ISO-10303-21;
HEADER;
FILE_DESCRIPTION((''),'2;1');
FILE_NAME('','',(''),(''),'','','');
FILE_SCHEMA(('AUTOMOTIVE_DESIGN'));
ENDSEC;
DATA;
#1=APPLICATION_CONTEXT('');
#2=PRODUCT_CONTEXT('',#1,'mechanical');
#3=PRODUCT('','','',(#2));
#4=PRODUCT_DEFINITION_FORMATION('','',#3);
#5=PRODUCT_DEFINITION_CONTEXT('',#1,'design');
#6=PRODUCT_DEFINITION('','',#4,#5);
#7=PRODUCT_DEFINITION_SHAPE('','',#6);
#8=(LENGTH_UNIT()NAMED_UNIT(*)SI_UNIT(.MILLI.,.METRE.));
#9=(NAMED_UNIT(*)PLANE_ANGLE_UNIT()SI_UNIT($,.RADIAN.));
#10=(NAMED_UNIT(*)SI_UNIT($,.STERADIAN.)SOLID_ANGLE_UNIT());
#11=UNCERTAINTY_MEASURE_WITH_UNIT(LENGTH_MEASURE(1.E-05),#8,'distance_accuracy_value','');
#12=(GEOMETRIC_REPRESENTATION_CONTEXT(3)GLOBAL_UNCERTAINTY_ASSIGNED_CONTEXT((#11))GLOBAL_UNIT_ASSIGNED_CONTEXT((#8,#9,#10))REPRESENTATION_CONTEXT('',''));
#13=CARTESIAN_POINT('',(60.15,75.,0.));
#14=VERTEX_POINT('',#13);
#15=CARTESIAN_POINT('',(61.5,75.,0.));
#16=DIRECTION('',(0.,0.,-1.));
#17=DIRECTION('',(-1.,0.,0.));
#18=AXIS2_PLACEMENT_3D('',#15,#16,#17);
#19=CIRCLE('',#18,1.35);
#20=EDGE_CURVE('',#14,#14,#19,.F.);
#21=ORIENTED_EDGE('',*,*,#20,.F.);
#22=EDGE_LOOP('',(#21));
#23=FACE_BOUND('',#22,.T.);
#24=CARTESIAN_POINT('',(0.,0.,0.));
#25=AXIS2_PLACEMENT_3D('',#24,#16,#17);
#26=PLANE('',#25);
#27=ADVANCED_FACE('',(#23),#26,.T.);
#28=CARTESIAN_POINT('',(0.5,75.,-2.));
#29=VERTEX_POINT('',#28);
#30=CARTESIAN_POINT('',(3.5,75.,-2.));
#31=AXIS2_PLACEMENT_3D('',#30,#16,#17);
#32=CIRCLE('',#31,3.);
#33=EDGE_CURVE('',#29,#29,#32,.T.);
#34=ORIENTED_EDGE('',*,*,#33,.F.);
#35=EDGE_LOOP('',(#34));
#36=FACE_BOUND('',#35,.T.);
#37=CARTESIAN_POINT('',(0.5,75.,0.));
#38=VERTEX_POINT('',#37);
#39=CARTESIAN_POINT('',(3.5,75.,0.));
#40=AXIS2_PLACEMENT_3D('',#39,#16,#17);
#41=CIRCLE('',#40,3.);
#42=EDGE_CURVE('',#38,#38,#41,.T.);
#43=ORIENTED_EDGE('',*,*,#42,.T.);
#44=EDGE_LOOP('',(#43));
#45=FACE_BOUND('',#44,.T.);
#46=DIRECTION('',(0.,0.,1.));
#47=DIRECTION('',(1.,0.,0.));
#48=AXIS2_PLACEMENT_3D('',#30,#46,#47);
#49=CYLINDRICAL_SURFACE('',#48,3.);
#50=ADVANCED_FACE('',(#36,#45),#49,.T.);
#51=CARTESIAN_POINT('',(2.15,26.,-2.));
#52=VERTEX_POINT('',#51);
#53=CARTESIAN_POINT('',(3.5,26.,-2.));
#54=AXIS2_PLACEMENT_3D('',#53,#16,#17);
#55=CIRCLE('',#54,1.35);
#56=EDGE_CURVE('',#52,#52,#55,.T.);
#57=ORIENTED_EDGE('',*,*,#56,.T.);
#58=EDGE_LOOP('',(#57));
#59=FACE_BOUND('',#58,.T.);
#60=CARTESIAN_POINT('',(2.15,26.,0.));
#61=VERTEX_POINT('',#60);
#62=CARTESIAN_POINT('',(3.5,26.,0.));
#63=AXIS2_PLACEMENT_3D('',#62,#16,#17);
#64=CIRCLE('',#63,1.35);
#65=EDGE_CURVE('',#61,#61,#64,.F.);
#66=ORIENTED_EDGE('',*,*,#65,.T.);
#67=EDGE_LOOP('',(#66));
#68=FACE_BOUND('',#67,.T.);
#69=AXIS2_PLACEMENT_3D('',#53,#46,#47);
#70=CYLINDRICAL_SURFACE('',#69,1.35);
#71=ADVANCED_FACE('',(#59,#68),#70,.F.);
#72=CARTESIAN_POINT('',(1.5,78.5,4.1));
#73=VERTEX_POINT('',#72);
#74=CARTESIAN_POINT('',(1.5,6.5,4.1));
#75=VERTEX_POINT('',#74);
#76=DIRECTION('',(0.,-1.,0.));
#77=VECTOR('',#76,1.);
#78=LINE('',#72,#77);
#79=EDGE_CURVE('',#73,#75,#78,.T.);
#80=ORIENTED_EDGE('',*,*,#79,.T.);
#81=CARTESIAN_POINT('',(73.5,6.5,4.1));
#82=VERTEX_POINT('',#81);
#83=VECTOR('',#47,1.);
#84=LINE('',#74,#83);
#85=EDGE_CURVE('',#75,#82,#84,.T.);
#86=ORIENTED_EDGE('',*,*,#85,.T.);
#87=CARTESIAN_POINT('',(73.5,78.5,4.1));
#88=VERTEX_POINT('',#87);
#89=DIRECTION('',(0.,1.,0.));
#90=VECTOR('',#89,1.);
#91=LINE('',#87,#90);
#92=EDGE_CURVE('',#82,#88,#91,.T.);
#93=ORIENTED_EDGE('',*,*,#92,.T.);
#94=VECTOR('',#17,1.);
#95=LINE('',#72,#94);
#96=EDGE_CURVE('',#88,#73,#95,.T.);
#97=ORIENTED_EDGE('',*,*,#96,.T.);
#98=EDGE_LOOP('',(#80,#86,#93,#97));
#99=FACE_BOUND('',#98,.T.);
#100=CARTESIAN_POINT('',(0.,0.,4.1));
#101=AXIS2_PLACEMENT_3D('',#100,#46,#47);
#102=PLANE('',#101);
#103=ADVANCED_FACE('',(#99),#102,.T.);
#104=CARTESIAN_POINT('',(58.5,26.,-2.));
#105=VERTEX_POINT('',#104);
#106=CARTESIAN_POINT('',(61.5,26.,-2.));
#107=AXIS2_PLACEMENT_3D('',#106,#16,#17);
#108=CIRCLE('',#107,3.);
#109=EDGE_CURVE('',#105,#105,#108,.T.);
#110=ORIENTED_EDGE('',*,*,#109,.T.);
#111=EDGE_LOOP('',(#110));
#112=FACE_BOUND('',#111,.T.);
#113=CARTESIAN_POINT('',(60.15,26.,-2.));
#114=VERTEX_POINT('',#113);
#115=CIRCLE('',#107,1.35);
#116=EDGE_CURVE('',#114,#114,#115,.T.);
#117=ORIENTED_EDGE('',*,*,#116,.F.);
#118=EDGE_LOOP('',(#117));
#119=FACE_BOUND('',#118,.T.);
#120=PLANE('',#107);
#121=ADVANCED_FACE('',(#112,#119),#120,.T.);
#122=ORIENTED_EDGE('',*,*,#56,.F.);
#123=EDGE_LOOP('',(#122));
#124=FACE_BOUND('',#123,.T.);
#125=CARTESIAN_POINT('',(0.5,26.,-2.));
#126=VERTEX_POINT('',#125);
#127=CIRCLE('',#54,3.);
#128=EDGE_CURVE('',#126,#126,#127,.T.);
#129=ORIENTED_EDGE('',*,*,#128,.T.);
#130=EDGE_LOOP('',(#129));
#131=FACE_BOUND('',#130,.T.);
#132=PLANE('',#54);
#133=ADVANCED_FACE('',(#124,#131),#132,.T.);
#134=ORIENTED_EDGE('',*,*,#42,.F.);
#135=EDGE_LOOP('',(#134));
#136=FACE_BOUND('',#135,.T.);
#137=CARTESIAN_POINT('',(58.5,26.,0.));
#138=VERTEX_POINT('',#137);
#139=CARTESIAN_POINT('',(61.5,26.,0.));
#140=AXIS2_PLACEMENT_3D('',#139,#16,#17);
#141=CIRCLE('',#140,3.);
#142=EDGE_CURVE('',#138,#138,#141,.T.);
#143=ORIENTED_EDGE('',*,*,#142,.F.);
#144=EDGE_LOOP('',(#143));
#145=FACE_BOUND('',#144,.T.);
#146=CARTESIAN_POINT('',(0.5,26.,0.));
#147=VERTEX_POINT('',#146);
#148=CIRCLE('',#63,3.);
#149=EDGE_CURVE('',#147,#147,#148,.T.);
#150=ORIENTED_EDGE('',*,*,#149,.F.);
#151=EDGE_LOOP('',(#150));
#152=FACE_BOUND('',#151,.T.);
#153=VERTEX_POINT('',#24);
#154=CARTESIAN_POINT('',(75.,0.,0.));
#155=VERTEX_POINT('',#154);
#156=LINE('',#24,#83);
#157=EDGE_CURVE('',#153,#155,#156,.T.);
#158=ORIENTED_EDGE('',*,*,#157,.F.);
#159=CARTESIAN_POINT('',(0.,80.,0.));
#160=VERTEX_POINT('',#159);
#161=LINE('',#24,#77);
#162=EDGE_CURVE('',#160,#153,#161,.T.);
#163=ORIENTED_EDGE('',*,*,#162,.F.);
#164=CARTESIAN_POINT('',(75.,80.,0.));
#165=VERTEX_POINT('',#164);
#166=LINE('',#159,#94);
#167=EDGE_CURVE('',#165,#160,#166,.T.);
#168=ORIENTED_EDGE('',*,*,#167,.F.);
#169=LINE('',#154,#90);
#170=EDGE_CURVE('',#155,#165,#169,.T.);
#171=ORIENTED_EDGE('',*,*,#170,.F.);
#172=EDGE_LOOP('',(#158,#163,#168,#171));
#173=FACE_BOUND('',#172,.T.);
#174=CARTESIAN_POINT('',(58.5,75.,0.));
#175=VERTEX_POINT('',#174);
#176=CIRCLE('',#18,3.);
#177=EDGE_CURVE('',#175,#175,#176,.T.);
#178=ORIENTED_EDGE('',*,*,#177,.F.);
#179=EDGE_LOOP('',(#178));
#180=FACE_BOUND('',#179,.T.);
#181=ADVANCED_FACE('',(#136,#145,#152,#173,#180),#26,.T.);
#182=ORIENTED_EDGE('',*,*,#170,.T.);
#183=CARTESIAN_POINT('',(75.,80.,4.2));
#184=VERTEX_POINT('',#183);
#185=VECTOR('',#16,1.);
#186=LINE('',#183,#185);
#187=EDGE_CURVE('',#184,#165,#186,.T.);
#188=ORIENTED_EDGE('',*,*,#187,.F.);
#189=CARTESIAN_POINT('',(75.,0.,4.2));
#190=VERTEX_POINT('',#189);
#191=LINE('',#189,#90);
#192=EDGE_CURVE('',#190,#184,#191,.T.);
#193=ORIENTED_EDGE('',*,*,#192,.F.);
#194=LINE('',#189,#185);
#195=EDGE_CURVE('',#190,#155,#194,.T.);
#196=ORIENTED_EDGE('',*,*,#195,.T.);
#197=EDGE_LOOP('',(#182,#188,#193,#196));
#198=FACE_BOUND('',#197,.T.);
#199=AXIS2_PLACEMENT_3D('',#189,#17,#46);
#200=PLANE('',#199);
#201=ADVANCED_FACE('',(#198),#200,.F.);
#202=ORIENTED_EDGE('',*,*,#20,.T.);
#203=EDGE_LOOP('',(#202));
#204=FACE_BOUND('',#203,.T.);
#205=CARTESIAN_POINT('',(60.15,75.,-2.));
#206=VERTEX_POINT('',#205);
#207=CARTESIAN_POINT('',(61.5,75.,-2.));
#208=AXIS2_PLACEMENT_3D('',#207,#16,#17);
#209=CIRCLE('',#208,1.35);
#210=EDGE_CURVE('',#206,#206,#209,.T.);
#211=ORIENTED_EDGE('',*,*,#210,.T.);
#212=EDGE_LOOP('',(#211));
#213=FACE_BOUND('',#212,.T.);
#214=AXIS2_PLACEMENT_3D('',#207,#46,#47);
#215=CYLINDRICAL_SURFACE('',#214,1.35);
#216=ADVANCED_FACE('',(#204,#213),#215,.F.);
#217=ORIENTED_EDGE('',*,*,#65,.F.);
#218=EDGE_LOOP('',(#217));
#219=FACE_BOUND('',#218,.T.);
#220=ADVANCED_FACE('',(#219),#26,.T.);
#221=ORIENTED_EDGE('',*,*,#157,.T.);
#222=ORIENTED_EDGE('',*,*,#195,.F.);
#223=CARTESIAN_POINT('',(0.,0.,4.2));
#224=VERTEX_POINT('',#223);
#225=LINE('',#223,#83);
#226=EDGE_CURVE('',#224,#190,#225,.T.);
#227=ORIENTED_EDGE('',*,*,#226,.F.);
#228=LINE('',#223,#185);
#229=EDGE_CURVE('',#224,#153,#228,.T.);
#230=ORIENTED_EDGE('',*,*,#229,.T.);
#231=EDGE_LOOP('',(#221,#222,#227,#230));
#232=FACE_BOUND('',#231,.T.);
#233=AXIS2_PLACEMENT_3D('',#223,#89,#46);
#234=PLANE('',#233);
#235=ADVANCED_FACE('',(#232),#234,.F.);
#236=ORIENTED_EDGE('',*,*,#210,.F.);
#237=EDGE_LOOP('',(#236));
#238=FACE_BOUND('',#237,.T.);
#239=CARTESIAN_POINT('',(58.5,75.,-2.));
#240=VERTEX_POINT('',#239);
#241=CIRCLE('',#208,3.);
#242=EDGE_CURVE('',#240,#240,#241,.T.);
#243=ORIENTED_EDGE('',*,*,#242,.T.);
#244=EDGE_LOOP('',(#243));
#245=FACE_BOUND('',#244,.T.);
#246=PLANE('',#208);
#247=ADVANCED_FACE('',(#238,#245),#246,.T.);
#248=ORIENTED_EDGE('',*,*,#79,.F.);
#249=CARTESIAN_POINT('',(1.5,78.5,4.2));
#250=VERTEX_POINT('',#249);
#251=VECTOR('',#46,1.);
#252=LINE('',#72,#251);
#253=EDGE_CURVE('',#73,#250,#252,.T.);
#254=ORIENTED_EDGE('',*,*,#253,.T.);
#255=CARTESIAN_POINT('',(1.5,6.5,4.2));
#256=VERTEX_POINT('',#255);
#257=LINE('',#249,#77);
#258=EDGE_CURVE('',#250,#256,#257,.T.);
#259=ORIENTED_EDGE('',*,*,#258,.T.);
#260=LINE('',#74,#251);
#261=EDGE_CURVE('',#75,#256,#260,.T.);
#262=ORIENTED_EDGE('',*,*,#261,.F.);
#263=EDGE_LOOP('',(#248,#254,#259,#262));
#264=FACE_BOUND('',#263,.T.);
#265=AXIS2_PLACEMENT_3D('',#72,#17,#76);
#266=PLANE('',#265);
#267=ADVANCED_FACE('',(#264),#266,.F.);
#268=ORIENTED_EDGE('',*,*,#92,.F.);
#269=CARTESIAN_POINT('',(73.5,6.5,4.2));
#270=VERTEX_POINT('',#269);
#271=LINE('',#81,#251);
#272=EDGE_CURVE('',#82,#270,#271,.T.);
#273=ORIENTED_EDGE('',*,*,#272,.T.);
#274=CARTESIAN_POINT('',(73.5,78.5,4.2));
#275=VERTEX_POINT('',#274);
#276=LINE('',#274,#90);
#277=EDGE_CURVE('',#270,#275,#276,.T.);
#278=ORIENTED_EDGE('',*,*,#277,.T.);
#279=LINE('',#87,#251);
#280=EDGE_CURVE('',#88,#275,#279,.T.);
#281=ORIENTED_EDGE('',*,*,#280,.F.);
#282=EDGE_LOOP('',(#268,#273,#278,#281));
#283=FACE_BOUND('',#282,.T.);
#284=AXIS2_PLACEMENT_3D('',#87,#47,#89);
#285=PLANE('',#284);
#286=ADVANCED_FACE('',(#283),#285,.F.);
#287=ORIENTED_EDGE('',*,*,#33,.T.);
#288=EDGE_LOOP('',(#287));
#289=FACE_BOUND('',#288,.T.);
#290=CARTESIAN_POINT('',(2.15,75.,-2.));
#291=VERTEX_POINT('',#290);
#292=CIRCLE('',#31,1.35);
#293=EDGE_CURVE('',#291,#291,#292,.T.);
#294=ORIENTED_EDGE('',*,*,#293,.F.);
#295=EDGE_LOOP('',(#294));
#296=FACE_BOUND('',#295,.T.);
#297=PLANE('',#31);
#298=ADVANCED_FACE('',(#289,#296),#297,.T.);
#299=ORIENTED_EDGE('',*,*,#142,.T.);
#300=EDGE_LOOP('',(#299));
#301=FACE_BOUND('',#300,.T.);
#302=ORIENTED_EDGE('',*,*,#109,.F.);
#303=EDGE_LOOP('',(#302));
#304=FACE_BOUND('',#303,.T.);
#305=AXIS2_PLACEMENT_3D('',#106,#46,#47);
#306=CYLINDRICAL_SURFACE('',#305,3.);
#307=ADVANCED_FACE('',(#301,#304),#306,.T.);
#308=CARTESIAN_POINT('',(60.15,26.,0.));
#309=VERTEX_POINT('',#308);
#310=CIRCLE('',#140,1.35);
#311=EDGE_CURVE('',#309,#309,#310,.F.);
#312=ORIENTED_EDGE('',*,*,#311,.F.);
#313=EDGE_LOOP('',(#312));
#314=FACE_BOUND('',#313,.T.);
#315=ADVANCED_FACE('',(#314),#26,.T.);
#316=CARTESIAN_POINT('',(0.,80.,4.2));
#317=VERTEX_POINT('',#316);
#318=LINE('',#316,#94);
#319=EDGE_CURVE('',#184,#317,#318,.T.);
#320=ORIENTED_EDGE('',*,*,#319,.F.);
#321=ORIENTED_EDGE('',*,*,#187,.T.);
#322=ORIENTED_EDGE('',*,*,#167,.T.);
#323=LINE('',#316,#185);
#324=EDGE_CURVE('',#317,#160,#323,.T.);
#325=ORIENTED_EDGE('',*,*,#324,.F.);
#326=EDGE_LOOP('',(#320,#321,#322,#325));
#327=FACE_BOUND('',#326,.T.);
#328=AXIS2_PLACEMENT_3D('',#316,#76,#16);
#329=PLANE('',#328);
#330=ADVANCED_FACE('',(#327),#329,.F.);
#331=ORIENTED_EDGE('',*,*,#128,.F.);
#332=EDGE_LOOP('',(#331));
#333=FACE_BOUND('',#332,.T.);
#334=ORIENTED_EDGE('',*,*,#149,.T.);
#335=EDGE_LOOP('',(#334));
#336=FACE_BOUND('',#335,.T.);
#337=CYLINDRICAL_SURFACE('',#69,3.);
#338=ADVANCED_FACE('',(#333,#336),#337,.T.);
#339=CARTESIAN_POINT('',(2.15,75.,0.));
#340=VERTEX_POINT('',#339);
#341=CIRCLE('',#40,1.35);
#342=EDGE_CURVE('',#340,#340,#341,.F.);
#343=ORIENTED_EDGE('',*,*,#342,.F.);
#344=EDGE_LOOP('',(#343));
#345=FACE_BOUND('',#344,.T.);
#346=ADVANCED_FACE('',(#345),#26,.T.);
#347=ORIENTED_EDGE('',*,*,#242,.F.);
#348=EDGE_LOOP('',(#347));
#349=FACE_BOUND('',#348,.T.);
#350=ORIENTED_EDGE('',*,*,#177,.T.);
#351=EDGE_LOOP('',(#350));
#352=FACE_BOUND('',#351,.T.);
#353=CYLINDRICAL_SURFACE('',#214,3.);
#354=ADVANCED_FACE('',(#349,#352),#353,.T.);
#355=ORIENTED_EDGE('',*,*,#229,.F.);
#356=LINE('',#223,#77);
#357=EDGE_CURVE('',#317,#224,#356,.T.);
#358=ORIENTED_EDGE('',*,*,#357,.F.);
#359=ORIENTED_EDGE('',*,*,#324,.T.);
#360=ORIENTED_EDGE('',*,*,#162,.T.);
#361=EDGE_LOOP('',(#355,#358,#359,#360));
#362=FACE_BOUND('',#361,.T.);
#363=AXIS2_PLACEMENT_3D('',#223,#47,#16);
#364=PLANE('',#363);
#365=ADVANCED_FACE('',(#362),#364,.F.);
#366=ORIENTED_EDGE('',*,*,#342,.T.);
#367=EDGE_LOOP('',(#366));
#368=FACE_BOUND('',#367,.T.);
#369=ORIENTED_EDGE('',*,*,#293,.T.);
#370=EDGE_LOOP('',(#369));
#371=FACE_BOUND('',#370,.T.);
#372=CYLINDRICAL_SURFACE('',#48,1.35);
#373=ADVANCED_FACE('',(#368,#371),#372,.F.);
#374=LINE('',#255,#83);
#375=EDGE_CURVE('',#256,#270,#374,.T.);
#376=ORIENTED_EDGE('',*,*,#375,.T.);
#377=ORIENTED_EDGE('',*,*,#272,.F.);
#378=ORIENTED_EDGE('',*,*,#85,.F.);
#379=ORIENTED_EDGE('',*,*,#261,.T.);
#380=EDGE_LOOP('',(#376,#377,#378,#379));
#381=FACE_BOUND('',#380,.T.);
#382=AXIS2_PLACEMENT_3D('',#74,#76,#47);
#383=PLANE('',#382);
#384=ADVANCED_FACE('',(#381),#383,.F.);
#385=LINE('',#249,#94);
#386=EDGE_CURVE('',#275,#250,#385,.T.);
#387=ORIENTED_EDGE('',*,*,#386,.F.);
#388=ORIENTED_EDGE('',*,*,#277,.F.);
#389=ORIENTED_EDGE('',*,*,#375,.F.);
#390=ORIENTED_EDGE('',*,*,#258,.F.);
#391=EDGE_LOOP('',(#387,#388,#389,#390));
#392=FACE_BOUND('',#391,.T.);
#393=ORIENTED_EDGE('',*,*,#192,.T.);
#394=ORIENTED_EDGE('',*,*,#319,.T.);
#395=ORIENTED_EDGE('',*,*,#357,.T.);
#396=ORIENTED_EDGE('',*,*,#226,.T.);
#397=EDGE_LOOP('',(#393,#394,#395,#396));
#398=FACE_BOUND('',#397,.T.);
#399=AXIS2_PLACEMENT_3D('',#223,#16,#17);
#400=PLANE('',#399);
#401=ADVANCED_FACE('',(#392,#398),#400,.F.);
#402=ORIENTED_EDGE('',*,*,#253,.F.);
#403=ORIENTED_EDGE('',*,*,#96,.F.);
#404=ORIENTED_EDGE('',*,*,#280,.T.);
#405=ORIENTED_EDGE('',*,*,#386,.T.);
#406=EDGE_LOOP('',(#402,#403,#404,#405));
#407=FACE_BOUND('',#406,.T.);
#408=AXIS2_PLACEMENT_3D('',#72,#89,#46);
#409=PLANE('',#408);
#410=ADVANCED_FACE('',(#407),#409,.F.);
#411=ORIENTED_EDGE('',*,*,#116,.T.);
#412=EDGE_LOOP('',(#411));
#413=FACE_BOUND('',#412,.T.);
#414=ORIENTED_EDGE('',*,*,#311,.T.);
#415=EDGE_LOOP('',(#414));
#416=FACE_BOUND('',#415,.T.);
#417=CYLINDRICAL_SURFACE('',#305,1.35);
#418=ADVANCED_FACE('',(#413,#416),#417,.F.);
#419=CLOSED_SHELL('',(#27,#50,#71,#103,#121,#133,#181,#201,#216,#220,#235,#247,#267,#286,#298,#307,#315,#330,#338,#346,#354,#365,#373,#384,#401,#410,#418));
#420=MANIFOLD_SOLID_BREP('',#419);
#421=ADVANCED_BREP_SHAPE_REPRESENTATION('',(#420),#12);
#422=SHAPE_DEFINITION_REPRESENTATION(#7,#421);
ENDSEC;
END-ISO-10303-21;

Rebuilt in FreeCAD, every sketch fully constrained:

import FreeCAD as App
import Part
import Sketcher

doc = App.newDocument("Part")
body = doc.addObject("PartDesign::Body", "Body")

sketch1 = body.newObject("Sketcher::SketchObject", "Sketch")
sketch1.AttachmentSupport = (doc.getObject("XY_Plane"), [""])
sketch1.MapMode = "FlatFace"
sketch1.addGeometry(Part.LineSegment(App.Vector(0, 80, 0), App.Vector(0, 0, 0)), False)
sketch1.addGeometry(Part.LineSegment(App.Vector(0, 0, 0), App.Vector(75, 0, 0)), False)
sketch1.addGeometry(Part.LineSegment(App.Vector(75, 0, 0), App.Vector(75, 80, 0)), False)
sketch1.addGeometry(Part.LineSegment(App.Vector(75, 80, 0), App.Vector(0, 80, 0)), False)
sketch1.addConstraint(Sketcher.Constraint("Coincident", 0, 2, 1, 1))
sketch1.addConstraint(Sketcher.Constraint("Coincident", 1, 2, 2, 1))
sketch1.addConstraint(Sketcher.Constraint("Coincident", 2, 2, 3, 1))
sketch1.addConstraint(Sketcher.Constraint("Coincident", 3, 2, 0, 1))
sketch1.addConstraint(Sketcher.Constraint("Vertical", 0))
sketch1.addConstraint(Sketcher.Constraint("Horizontal", 1))
sketch1.addConstraint(Sketcher.Constraint("Vertical", 2))
sketch1.addConstraint(Sketcher.Constraint("Horizontal", 3))
sketch1.addConstraint(Sketcher.Constraint("Coincident", 0, 2, -1, 1))
sketch1.addConstraint(Sketcher.Constraint("DistanceX", 1, 1, 1, 2, 75.0))
sketch1.addConstraint(Sketcher.Constraint("DistanceY", 0, 2, 0, 1, 80.0))
pad1 = body.newObject("PartDesign::Pad", "Pad")
pad1.Profile = sketch1
pad1.Length = 4.2

sketch2 = body.newObject("Sketcher::SketchObject", "Sketch001")
sketch2.AttachmentSupport = (doc.getObject("XY_Plane"), [""])
sketch2.MapMode = "FlatFace"
sketch2.AttachmentOffset = App.Placement(App.Vector(0, 0, 4.2), App.Rotation())
sketch2.addGeometry(Part.LineSegment(App.Vector(2, 78, 0), App.Vector(2, 6, 0)), False)
sketch2.addGeometry(Part.LineSegment(App.Vector(2, 6, 0), App.Vector(74, 6, 0)), False)
sketch2.addGeometry(Part.LineSegment(App.Vector(74, 6, 0), App.Vector(74, 78, 0)), False)
sketch2.addGeometry(Part.LineSegment(App.Vector(74, 78, 0), App.Vector(2, 78, 0)), False)
sketch2.addConstraint(Sketcher.Constraint("Coincident", 0, 2, 1, 1))
sketch2.addConstraint(Sketcher.Constraint("Coincident", 1, 2, 2, 1))
sketch2.addConstraint(Sketcher.Constraint("Coincident", 2, 2, 3, 1))
sketch2.addConstraint(Sketcher.Constraint("Coincident", 3, 2, 0, 1))
sketch2.addConstraint(Sketcher.Constraint("Vertical", 0))
sketch2.addConstraint(Sketcher.Constraint("Horizontal", 1))
sketch2.addConstraint(Sketcher.Constraint("Vertical", 2))
sketch2.addConstraint(Sketcher.Constraint("Horizontal", 3))
sketch2.addConstraint(Sketcher.Constraint("Equal", 3, 0))
sketch2.addConstraint(Sketcher.Constraint("DistanceX", 1, 1, 1, 2, 72.0))
sketch2.addConstraint(Sketcher.Constraint("DistanceX", -1, 1, 0, 2, 1.5))
sketch2.addConstraint(Sketcher.Constraint("DistanceY", -1, 1, 0, 2, 6.5))
pocket1 = body.newObject("PartDesign::Pocket", "Pocket")
pocket1.Profile = sketch2
pocket1.Length = 0.1

sketch3 = body.newObject("Sketcher::SketchObject", "Sketch002")
sketch3.AttachmentSupport = (doc.getObject("XY_Plane"), [""])
sketch3.MapMode = "FlatFace"
sketch3.addGeometry(Part.Circle(App.Vector(61.5, 75, 0), App.Vector(0, 0, 1), 3), False)
sketch3.addGeometry(Part.Circle(App.Vector(61.5, 75, 0), App.Vector(0, 0, 1), 1.4), False)
sketch3.addGeometry(Part.Circle(App.Vector(3.5, 75, 0), App.Vector(0, 0, 1), 3), False)
sketch3.addGeometry(Part.Circle(App.Vector(3.5, 75, 0), App.Vector(0, 0, 1), 1.4), False)
sketch3.addGeometry(Part.Circle(App.Vector(3.5, 26, 0), App.Vector(0, 0, 1), 3), False)
sketch3.addGeometry(Part.Circle(App.Vector(3.5, 26, 0), App.Vector(0, 0, 1), 1.4), False)
sketch3.addGeometry(Part.Circle(App.Vector(61.5, 26, 0), App.Vector(0, 0, 1), 3), False)
sketch3.addGeometry(Part.Circle(App.Vector(61.5, 26, 0), App.Vector(0, 0, 1), 1.4), False)
sketch3.addConstraint(Sketcher.Constraint("Coincident", 1, 3, 0, 3))
sketch3.addConstraint(Sketcher.Constraint("Coincident", 3, 3, 2, 3))
sketch3.addConstraint(Sketcher.Constraint("Coincident", 5, 3, 4, 3))
sketch3.addConstraint(Sketcher.Constraint("Coincident", 7, 3, 6, 3))
sketch3.addConstraint(Sketcher.Constraint("Equal", 0, 2))
sketch3.addConstraint(Sketcher.Constraint("Equal", 1, 3))
sketch3.addConstraint(Sketcher.Constraint("Equal", 2, 4))
sketch3.addConstraint(Sketcher.Constraint("Equal", 3, 5))
sketch3.addConstraint(Sketcher.Constraint("Equal", 4, 6))
sketch3.addConstraint(Sketcher.Constraint("Equal", 5, 7))
sketch3.addConstraint(Sketcher.Constraint("Horizontal", 1, 3, 2, 3))
sketch3.addConstraint(Sketcher.Constraint("Horizontal", 5, 3, 6, 3))
sketch3.addConstraint(Sketcher.Constraint("Vertical", 3, 3, 4, 3))
sketch3.addConstraint(Sketcher.Constraint("Vertical", 1, 3, 6, 3))
sketch3.addConstraint(Sketcher.Constraint("Diameter", 0, 6.0))
sketch3.addConstraint(Sketcher.Constraint("Diameter", 1, 2.7))
sketch3.addConstraint(Sketcher.Constraint("DistanceY", -1, 1, 0, 3, 75.0))
sketch3.addConstraint(Sketcher.Constraint("DistanceY", -1, 1, 4, 3, 26.0))
sketch3.addConstraint(Sketcher.Constraint("DistanceX", 2, 3, 0, 3, 58.0))
sketch3.addConstraint(Sketcher.Constraint("DistanceX", -1, 1, 0, 3, 61.5))
pad2 = body.newObject("PartDesign::Pad", "Pad001")
pad2.Profile = sketch3
pad2.Length = 2
pad2.Reversed = True

doc.recompute()
